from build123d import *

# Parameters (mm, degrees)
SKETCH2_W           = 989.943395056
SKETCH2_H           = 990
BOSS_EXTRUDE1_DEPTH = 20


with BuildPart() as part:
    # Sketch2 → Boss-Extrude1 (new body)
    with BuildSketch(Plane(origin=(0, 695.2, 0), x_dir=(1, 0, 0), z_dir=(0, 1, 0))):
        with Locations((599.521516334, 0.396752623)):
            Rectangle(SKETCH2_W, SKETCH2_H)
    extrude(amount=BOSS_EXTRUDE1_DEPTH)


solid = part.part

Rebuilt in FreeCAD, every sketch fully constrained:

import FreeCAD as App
import Part
import Sketcher

V = App.Vector
Q = App.Units.Quantity

doc = App.newDocument("Part")
body = doc.addObject("PartDesign::Body", "Body")

sketch1 = body.newObject("Sketcher::SketchObject", "Sketch")
sketch1.AttachmentSupport = (doc.getObject("XZ_Plane"), [""])
sketch1.MapMode = "FlatFace"
sketch1.AttachmentOffset = App.Placement(V(0, 0, -695.2), App.Rotation())
sketch1.addGeometry([
    Part.LineSegment(V(105, -495, 0), V(105, 495, 0)),
    Part.LineSegment(V(105, 495, 0), V(1094, 495, 0)),
    Part.LineSegment(V(1094, 495, 0), V(1094, -495, 0)),
    Part.LineSegment(V(1094, -495, 0), V(105, -495, 0)),
], False)
sketch1.addConstraint([
    Sketcher.Constraint("Coincident", 0, 2, 1, 1),
    Sketcher.Constraint("Coincident", 1, 2, 2, 1),
    Sketcher.Constraint("Coincident", 2, 2, 3, 1),
    Sketcher.Constraint("Coincident", 3, 2, 0, 1),
    Sketcher.Constraint("Vertical", 0),
    Sketcher.Constraint("Horizontal", 1),
    Sketcher.Constraint("Vertical", 2),
    Sketcher.Constraint("Horizontal", 3),
    Sketcher.Constraint("DistanceY", 0, 1, 0, 2, Q("990 mm")),
    Sketcher.Constraint("DistanceX", 1, 1, 1, 2, Q("989.943395 mm")),
    Sketcher.Constraint("DistanceX", -1, 1, 0, 2, Q("104.549819 mm")),
    Sketcher.Constraint("DistanceY", -1, 1, 0, 2, Q("494.603247 mm")),
])
pad1 = body.newObject("PartDesign::Pad", "Pad")
pad1.Profile = sketch1
pad1.Length = 20
pad1.Reversed = True

doc.recompute()
